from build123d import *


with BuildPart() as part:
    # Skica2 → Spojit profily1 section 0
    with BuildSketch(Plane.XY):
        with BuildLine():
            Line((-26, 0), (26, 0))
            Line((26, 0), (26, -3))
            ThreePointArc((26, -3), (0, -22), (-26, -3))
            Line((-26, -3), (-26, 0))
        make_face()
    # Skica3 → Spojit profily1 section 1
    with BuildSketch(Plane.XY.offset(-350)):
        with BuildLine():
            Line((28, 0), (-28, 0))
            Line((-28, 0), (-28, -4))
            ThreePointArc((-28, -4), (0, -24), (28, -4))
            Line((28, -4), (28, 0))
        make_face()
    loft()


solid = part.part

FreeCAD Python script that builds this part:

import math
import FreeCAD as App
import Part
import Sketcher
Q = App.Units.Quantity

doc = App.newDocument("Part")
body = doc.addObject("PartDesign::Body", "Body")

# Sketch on XY plane
sketch1 = doc.addObject("Sketcher::SketchObject", "Sketch")
body.addObject(sketch1)
sketch1.AttachmentSupport = (doc.XY_Plane, [""])
sketch1.MapMode = "FlatFace"
sketch1.addGeometry([
    Part.LineSegment(App.Vector(26, 0, 0), App.Vector(-26, 0, 0)),
    Part.LineSegment(App.Vector(-26, 0, 0), App.Vector(-26, -3, 0)),
    Part.ArcOfCircle(Part.Circle(App.Vector(0, 5.3, 0), App.Vector(0, 0, 1), 27.3), math.radians(-162), math.radians(-18)),
    Part.LineSegment(App.Vector(26, -3, 0), App.Vector(26, 0, 0)),
], False)
sketch1.addConstraint([
    Sketcher.Constraint("Coincident", 0, 2, 1, 1),
    Sketcher.Constraint("Coincident", 1, 2, 2, 1),
    Sketcher.Constraint("Coincident", 2, 2, 3, 1),
    Sketcher.Constraint("Coincident", 3, 2, 0, 1),
    Sketcher.Constraint("Horizontal", 0),
    Sketcher.Constraint("Vertical", 1),
    Sketcher.Constraint("Vertical", 3),
    Sketcher.Constraint("Symmetric", 0, 2, 3, 2, -1, 1),
    Sketcher.Constraint("PointOnObject", 2, 3, -2),
    Sketcher.Constraint("DistanceX", 0, 2, 0, 1, Q("52 mm")),
    Sketcher.Constraint("DistanceY", 1, 2, 1, 1, Q("3 mm")),
    Sketcher.Constraint("Radius", 2, Q("27.289474 mm")),
])

# Sketch on XY plane
sketch2 = doc.addObject("Sketcher::SketchObject", "Sketch001")
body.addObject(sketch2)
sketch2.AttachmentSupport = (doc.XY_Plane, [""])
sketch2.MapMode = "FlatFace"
sketch2.AttachmentOffset = App.Placement(App.Vector(0, 0, -350), App.Rotation())
sketch2.addGeometry([
    Part.LineSegment(App.Vector(28, 0, 0), App.Vector(-28, 0, 0)),
    Part.LineSegment(App.Vector(-28, 0, 0), App.Vector(-28, -4, 0)),
    Part.ArcOfCircle(Part.Circle(App.Vector(0, 5.6, 0), App.Vector(0, 0, 1), 29.6), math.radians(-161), math.radians(-19)),
    Part.LineSegment(App.Vector(28, -4, 0), App.Vector(28, 0, 0)),
], False)
sketch2.addConstraint([
    Sketcher.Constraint("Coincident", 0, 2, 1, 1),
    Sketcher.Constraint("Coincident", 1, 2, 2, 1),
    Sketcher.Constraint("Coincident", 2, 2, 3, 1),
    Sketcher.Constraint("Coincident", 3, 2, 0, 1),
    Sketcher.Constraint("Horizontal", 0),
    Sketcher.Constraint("Vertical", 1),
    Sketcher.Constraint("Vertical", 3),
    Sketcher.Constraint("Symmetric", 0, 2, 3, 2, -1, 1),
    Sketcher.Constraint("PointOnObject", 2, 3, -2),
    Sketcher.Constraint("Radius", 2, Q("29.6 mm")),
    Sketcher.Constraint("DistanceX", 0, 2, 0, 1, Q("56 mm")),
    Sketcher.Constraint("DistanceY", 1, 2, 1, 1, Q("4 mm")),
])

additiveloft = doc.addObject("PartDesign::AdditiveLoft", "AdditiveLoft")
body.addObject(additiveloft)
additiveloft.Profile = sketch1
additiveloft.Sections = [sketch2]

doc.recompute()
